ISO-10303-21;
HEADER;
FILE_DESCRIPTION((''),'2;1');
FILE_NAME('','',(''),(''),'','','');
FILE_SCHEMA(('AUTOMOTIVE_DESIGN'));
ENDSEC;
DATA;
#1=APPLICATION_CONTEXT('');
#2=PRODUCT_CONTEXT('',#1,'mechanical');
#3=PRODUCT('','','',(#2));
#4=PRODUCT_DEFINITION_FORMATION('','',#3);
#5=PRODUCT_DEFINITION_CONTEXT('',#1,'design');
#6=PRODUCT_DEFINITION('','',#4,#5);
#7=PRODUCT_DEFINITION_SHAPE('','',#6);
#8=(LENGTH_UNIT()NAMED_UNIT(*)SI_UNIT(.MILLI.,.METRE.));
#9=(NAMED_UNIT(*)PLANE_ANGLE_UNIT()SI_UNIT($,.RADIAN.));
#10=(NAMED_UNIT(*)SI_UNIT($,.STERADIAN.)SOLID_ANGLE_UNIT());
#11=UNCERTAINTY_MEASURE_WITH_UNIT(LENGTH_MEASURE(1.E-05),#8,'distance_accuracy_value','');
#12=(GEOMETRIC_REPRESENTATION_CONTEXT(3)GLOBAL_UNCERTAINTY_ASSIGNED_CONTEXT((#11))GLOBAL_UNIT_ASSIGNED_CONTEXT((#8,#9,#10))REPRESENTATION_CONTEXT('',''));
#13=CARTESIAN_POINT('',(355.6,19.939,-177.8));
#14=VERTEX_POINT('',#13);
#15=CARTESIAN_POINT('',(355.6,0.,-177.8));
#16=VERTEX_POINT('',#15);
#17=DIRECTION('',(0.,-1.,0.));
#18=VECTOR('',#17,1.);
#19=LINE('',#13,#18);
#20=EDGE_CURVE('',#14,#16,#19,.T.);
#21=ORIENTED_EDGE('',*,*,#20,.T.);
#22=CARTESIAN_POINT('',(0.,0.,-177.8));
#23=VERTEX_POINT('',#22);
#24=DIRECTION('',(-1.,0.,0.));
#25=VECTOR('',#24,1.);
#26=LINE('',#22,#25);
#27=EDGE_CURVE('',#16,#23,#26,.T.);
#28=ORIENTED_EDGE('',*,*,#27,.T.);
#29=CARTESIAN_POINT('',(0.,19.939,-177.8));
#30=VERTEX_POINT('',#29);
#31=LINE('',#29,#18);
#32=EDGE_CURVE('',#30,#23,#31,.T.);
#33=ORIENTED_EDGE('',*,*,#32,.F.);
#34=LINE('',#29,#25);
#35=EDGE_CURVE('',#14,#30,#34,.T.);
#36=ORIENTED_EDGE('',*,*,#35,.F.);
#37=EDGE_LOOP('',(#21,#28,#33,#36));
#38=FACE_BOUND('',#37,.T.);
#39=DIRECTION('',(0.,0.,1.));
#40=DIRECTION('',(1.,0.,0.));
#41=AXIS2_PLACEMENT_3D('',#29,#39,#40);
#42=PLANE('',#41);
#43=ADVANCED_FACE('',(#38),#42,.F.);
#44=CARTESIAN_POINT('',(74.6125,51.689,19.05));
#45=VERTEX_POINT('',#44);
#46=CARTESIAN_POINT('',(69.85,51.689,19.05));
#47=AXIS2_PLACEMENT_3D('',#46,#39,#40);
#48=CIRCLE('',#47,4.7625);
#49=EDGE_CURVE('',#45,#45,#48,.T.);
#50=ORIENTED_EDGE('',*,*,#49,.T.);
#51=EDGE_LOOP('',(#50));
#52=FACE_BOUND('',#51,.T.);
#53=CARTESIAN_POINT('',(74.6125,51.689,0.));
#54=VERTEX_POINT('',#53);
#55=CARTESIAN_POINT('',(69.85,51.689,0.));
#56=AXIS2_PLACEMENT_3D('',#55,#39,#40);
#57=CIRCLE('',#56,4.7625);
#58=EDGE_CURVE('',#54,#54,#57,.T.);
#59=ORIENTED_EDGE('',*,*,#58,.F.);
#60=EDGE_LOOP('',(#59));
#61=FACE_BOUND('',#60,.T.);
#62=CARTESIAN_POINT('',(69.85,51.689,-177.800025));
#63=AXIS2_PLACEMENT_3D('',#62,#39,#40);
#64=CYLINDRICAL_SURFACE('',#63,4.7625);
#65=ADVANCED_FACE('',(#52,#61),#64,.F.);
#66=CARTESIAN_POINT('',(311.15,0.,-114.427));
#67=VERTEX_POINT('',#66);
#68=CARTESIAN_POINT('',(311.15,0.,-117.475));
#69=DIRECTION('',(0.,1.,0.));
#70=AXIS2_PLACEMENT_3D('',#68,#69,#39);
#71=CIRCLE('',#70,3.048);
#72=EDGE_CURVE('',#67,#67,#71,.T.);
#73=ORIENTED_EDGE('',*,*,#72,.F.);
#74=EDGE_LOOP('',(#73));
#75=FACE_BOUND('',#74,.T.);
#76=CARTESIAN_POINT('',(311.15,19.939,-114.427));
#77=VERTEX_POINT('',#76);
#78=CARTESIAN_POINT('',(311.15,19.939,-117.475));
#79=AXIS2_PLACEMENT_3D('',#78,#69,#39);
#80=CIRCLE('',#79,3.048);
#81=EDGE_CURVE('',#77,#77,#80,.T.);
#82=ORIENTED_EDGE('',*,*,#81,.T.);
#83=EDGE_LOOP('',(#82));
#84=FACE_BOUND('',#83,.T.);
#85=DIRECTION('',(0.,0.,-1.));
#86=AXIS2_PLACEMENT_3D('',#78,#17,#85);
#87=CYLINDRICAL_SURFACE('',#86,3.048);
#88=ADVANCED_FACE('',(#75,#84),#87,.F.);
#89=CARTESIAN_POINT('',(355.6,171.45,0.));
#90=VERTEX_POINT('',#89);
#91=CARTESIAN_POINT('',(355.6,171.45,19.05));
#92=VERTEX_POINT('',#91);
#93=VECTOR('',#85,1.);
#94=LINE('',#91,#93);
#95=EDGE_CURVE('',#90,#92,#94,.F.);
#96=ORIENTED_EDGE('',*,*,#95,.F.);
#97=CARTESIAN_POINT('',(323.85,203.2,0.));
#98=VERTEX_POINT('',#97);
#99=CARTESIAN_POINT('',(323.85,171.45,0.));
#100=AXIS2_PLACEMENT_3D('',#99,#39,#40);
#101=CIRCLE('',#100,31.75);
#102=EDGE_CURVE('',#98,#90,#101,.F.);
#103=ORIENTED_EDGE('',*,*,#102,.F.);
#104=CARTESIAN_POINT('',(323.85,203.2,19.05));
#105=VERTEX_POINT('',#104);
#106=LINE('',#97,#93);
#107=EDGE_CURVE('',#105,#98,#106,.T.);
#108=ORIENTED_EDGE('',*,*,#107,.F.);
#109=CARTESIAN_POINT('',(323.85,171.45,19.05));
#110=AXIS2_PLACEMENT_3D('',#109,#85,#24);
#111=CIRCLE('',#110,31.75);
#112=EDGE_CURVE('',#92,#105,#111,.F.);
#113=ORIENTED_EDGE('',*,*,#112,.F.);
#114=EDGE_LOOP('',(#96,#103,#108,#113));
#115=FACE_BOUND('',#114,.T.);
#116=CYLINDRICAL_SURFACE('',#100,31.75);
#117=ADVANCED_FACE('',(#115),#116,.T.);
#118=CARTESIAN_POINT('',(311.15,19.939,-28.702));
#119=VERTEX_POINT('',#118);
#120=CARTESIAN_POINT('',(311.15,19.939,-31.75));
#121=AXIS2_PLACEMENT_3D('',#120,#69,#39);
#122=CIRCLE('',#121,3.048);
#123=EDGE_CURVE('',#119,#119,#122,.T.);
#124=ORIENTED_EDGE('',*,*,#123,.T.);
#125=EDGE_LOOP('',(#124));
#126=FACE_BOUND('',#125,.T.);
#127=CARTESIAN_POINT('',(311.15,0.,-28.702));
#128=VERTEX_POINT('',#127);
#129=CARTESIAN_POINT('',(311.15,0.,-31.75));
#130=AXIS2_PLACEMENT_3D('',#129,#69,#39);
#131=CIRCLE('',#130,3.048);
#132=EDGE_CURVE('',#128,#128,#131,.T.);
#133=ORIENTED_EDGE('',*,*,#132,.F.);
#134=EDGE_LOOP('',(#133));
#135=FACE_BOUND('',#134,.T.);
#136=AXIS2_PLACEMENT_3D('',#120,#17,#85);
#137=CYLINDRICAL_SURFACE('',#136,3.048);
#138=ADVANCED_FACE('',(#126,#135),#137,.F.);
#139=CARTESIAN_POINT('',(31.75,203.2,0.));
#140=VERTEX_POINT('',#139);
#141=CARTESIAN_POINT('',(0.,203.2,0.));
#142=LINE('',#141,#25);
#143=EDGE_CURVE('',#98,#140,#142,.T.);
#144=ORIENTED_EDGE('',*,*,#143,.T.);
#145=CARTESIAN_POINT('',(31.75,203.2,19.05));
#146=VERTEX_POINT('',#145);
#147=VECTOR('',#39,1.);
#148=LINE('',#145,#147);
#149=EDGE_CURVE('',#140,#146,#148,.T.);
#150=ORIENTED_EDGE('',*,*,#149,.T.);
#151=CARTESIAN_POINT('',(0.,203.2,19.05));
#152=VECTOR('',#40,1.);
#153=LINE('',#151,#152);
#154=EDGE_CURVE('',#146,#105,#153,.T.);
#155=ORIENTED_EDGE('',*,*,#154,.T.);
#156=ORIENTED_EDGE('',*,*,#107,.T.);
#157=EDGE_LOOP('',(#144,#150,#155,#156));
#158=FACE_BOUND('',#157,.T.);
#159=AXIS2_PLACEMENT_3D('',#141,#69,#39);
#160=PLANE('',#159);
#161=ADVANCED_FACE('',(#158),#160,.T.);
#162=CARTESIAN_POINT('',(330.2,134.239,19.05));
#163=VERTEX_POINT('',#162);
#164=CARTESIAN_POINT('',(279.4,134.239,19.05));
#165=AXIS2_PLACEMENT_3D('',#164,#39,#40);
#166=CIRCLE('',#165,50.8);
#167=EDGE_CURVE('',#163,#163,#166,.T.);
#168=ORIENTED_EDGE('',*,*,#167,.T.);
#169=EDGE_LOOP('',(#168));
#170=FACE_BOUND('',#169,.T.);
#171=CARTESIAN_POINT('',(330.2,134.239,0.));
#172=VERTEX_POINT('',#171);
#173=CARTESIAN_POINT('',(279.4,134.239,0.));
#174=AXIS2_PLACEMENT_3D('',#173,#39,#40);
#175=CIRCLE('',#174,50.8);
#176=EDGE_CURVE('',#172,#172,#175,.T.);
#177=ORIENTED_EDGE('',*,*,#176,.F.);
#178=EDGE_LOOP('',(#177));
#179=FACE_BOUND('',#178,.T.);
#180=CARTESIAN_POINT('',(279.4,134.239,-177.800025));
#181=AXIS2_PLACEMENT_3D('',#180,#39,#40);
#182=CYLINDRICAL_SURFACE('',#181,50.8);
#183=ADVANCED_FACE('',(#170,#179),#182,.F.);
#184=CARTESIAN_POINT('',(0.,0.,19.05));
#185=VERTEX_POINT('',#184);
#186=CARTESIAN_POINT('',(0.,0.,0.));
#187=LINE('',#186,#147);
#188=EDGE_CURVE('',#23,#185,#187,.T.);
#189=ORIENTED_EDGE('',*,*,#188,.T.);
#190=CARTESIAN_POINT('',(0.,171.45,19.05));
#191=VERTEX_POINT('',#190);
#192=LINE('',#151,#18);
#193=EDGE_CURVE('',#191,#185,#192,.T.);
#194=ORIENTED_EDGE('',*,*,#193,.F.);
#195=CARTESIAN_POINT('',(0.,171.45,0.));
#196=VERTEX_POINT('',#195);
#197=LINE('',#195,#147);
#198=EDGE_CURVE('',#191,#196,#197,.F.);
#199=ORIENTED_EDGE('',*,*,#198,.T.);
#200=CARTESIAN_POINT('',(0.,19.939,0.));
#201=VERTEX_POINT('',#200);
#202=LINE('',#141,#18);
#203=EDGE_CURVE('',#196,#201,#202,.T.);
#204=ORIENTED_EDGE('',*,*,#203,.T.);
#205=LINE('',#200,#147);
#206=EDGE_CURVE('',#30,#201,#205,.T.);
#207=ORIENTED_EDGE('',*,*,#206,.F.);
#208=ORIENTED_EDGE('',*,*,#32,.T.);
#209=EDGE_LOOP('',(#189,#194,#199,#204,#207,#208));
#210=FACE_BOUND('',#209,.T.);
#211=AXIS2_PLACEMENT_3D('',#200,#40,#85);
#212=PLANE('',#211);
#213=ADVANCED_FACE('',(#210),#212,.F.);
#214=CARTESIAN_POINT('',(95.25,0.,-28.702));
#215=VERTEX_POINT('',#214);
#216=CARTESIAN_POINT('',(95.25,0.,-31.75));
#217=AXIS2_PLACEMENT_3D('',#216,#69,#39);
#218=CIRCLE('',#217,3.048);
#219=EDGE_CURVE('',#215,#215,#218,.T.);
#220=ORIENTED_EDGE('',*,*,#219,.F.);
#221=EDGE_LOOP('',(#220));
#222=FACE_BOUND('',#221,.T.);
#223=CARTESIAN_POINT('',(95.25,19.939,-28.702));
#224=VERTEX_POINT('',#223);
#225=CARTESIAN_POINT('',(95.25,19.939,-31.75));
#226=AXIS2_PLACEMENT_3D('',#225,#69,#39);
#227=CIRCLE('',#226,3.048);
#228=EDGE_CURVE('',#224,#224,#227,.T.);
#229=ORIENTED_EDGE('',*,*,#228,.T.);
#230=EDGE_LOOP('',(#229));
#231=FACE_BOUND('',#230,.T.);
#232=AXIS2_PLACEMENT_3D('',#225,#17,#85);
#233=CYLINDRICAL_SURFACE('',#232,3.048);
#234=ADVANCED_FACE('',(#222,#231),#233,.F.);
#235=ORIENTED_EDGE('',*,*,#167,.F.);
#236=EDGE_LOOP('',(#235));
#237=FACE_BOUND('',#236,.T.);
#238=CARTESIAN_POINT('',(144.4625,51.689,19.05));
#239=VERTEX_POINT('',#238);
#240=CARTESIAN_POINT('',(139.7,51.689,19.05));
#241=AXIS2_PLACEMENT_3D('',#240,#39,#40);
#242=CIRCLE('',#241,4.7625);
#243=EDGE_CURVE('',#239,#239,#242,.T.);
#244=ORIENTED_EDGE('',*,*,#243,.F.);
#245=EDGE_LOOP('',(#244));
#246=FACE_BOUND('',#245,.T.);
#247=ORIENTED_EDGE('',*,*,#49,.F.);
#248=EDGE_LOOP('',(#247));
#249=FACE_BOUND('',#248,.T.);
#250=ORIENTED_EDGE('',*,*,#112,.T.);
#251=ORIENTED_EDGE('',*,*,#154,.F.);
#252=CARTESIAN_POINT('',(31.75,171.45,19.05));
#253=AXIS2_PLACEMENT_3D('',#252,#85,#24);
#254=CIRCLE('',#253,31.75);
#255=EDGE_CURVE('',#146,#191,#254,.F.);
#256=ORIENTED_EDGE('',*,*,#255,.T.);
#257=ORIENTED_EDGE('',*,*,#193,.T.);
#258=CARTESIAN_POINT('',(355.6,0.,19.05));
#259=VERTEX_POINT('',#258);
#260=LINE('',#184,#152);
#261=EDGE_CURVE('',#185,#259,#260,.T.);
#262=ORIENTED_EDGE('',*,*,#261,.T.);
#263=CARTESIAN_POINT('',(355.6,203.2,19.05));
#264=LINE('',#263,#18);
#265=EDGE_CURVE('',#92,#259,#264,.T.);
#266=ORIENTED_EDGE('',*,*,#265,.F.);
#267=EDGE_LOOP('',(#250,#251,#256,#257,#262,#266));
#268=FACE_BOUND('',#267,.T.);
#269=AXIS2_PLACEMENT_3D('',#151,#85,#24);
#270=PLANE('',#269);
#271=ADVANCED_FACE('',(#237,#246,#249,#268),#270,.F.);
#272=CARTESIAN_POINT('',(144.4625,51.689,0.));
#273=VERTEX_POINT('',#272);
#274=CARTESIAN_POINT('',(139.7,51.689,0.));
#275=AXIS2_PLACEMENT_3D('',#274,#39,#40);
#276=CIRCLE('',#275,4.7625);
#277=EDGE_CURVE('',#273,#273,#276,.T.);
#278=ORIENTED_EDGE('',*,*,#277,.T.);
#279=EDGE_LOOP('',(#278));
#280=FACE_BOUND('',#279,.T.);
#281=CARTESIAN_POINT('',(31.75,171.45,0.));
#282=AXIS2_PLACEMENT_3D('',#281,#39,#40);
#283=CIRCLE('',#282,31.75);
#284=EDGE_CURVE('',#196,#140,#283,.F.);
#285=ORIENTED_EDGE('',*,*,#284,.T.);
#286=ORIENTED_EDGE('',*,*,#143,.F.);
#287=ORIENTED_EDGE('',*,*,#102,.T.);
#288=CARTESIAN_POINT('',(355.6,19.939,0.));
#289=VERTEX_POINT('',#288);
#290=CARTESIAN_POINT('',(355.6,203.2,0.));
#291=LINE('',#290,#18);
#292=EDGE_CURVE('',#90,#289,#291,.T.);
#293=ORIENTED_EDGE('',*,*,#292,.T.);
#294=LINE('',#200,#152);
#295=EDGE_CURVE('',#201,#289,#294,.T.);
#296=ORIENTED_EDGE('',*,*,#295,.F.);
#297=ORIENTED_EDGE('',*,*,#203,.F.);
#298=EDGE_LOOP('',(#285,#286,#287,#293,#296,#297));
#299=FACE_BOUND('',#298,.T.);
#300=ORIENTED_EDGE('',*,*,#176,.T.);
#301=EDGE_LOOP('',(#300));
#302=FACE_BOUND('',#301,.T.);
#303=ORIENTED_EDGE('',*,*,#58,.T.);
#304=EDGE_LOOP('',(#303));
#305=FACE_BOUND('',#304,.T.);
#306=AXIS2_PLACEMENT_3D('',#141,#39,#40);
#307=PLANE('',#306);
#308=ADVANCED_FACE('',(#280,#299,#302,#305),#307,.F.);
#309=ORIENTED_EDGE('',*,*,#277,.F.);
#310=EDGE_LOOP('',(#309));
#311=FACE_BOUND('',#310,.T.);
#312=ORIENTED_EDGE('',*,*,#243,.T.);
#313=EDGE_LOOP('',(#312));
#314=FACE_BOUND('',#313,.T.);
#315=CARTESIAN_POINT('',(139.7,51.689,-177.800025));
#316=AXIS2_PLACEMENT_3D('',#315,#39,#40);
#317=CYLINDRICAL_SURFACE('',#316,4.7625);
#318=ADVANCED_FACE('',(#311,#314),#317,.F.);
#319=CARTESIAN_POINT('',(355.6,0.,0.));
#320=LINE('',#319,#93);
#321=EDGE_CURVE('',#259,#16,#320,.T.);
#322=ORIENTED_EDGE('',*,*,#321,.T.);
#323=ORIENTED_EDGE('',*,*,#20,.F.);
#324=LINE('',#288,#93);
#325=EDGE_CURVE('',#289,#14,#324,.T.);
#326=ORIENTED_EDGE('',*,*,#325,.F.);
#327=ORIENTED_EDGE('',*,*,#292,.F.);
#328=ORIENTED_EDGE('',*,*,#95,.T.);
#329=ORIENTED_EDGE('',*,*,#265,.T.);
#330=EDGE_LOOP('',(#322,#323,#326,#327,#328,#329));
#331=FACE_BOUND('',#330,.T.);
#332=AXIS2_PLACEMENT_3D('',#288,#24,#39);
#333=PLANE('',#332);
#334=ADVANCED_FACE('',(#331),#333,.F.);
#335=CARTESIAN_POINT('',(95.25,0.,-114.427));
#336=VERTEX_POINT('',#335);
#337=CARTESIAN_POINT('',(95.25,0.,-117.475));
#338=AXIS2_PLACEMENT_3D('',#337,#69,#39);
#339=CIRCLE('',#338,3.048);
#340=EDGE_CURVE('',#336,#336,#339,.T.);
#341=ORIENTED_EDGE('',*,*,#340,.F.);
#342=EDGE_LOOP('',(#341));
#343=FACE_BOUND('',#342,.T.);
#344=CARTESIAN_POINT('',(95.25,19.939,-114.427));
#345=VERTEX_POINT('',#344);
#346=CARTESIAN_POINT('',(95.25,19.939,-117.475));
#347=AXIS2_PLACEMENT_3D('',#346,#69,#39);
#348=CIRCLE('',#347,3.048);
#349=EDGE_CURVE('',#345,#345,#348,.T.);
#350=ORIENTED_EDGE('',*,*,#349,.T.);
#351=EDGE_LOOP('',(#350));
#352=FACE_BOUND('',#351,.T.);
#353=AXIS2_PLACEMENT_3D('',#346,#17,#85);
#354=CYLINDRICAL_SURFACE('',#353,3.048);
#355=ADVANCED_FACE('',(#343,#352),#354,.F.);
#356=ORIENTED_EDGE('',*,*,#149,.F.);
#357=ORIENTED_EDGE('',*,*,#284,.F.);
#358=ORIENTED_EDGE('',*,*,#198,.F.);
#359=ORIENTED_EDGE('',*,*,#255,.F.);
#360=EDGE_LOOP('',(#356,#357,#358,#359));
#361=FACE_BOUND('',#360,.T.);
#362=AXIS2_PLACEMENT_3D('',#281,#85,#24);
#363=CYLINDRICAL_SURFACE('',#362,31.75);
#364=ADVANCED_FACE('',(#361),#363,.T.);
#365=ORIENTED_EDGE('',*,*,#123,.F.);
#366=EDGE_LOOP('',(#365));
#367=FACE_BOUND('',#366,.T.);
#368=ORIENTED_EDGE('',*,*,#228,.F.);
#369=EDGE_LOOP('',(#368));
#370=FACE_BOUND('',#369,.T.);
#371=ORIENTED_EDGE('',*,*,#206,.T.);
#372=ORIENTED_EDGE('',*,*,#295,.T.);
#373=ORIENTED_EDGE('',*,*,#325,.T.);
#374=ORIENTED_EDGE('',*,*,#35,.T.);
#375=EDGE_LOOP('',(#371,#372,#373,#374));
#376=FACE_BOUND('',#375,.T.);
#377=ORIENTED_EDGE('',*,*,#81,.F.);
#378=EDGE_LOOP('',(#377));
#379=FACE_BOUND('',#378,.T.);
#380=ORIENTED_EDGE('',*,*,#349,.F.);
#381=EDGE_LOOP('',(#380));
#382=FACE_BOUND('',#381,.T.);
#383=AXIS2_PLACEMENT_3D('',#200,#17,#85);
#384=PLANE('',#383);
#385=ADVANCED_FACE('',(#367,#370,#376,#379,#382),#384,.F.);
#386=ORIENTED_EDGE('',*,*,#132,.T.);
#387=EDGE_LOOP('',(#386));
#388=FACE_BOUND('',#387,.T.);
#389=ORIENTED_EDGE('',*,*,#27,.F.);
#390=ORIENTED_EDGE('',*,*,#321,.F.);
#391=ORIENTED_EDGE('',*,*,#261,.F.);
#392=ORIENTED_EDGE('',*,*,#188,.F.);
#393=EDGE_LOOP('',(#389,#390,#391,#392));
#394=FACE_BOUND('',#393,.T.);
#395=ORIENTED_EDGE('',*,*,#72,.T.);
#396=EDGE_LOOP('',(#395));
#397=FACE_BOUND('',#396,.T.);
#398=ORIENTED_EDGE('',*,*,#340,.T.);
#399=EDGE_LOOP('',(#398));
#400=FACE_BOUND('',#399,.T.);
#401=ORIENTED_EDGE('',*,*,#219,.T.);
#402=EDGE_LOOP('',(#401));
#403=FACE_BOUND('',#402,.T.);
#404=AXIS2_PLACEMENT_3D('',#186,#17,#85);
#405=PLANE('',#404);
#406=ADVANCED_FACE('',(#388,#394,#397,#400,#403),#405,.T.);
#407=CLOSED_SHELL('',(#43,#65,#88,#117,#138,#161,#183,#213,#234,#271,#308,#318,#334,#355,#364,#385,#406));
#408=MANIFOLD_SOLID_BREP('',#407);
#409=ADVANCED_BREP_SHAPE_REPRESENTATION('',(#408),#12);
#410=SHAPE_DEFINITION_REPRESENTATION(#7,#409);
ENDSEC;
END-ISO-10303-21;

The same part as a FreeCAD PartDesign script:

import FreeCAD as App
import Part
import Sketcher

V = App.Vector
Q = App.Units.Quantity


def edges_at(feature, points):
    """Names of the edges that pass closest to the given points."""
    edges = feature.Shape.Edges
    near = lambda p: min(range(len(edges)), key=lambda i: edges[i].distToShape(Part.Vertex(*p))[0])
    return sorted({f"Edge{near(p) + 1}" for p in points})

doc = App.newDocument("Part")
body = doc.addObject("PartDesign::Body", "Body")

# Sketch on XZ plane
sketch1 = body.newObject("Sketcher::SketchObject", "Sketch")
sketch1.AttachmentSupport = (doc.getObject("XZ_Plane"), [""])
sketch1.MapMode = "FlatFace"
sketch1.addGeometry([
    Part.LineSegment(V(0, -177.8, 0), V(0, 0, 0)),  # 0
    Part.LineSegment(V(0, 0, 0), V(355.6, 0, 0)),  # 1
    Part.LineSegment(V(355.6, 0, 0), V(355.6, -177.8, 0)),  # 2
    Part.LineSegment(V(355.6, -177.8, 0), V(0, -177.8, 0)),  # 3
    Part.Circle(V(95.25, -31.75, 0), V(0, 0, 1), 3.048),  # 4
    Part.Circle(V(311.15, -31.75, 0), V(0, 0, 1), 3.048),  # 5
    Part.Circle(V(95.25, -117.475, 0), V(0, 0, 1), 3.048),  # 6
    Part.Circle(V(311.15, -117.475, 0), V(0, 0, 1), 3.048),  # 7
], False)
sketch1.addConstraint([
    Sketcher.Constraint("Coincident", 0, 2, 1, 1),
    Sketcher.Constraint("Coincident", 1, 2, 2, 1),
    Sketcher.Constraint("Coincident", 2, 2, 3, 1),
    Sketcher.Constraint("Coincident", 3, 2, 0, 1),
    Sketcher.Constraint("Vertical", 0),
    Sketcher.Constraint("Horizontal", 1),
    Sketcher.Constraint("Vertical", 2),
    Sketcher.Constraint("Horizontal", 3),
    Sketcher.Constraint("Coincident", 0, 2, -1, 1),
    Sketcher.Constraint("Equal", 4, 5),
    Sketcher.Constraint("Equal", 5, 6),
    Sketcher.Constraint("Equal", 6, 7),
    Sketcher.Constraint("Horizontal", 4, 3, 5, 3),
    Sketcher.Constraint("Horizontal", 6, 3, 7, 3),
    Sketcher.Constraint("Vertical", 4, 3, 6, 3),
    Sketcher.Constraint("Vertical", 5, 3, 7, 3),
    Sketcher.Constraint("Diameter", 4, Q("0.24 in")),
    Sketcher.Constraint("DistanceX", 1, 1, 1, 2, Q("14 in")),
    Sketcher.Constraint("DistanceY", 0, 1, 0, 2, Q("7 in")),
    Sketcher.Constraint("DistanceX", 4, 3, 5, 3, Q("8.5 in")),
    Sketcher.Constraint("DistanceX", -1, 1, 4, 3, Q("3.75 in")),
    Sketcher.Constraint("DistanceY", 4, 3, -1, 1, Q("1.25 in")),
    Sketcher.Constraint("DistanceY", 6, 3, -1, 1, Q("4.625 in")),
])
pad1 = body.newObject("PartDesign::Pad", "Pad")
pad1.Profile = sketch1
pad1.Length = Q("0.785 in")
pad1.Reversed = True

# Sketch on XZ plane
sketch2 = body.newObject("Sketcher::SketchObject", "Sketch001")
sketch2.AttachmentSupport = (doc.getObject("XZ_Plane"), [""])
sketch2.MapMode = "FlatFace"
sketch2.addGeometry([
    Part.LineSegment(V(0, 0, 0), V(0, 19.05, 0)),
    Part.LineSegment(V(0, 19.05, 0), V(355.6, 19.05, 0)),
    Part.LineSegment(V(355.6, 19.05, 0), V(355.6, 0, 0)),
    Part.LineSegment(V(355.6, 0, 0), V(0, 0, 0)),
], False)
sketch2.addConstraint([
    Sketcher.Constraint("Coincident", 0, 2, 1, 1),
    Sketcher.Constraint("Coincident", 1, 2, 2, 1),
    Sketcher.Constraint("Coincident", 2, 2, 3, 1),
    Sketcher.Constraint("Coincident", 3, 2, 0, 1),
    Sketcher.Constraint("Vertical", 0),
    Sketcher.Constraint("Horizontal", 1),
    Sketcher.Constraint("Vertical", 2),
    Sketcher.Constraint("Horizontal", 3),
    Sketcher.Constraint("Coincident", 3, 2, -1, 1),
    Sketcher.Constraint("DistanceX", 1, 1, 1, 2, Q("14 in")),
    Sketcher.Constraint("DistanceY", 0, 1, 0, 2, Q("0.75 in")),
])
pad2 = body.newObject("PartDesign::Pad", "Pad001")
pad2.Profile = sketch2
pad2.Length = Q("8 in")
pad2.Reversed = True

# Sketch on XY plane
sketch3 = body.newObject("Sketcher::SketchObject", "Sketch002")
sketch3.AttachmentSupport = (doc.getObject("XY_Plane"), [""])
sketch3.MapMode = "FlatFace"
sketch3.AttachmentOffset = App.Placement(V(0, 0, 0.75 * 25.4), App.Rotation())
sketch3.addGeometry([
    Part.Circle(V(279.4, 134.239, 0), V(0, 0, 1), 50.8),
    Part.Circle(V(69.85, 51.689, 0), V(0, 0, 1), 4.7625),
    Part.Circle(V(139.7, 51.689, 0), V(0, 0, 1), 4.7625),
], False)
sketch3.addConstraint([
    Sketcher.Constraint("Equal", 1, 2),
    Sketcher.Constraint("Horizontal", 1, 3, 2, 3),
    Sketcher.Constraint("Diameter", 0, Q("4 in")),
    Sketcher.Constraint("Diameter", 1, Q("0.375 in")),
    Sketcher.Constraint("DistanceX", -1, 1, 0, 3, Q("11 in")),
    Sketcher.Constraint("DistanceX", -1, 1, 2, 3, Q("5.5 in")),
    Sketcher.Constraint("DistanceX", -1, 1, 1, 3, Q("2.75 in")),
    Sketcher.Constraint("DistanceY", 1, 3, 0, 3, Q("3.25 in")),
    Sketcher.Constraint("DistanceY", -1, 1, 0, 3, Q("5.285 in")),
])
pocket1 = body.newObject("PartDesign::Pocket", "Pocket")
pocket1.Profile = sketch3
pocket1.Type = "ThroughAll"
doc.recompute()

fillet = body.newObject("PartDesign::Fillet", "Fillet")
fillet.Base = (pocket1, edges_at(pocket1, [(355.6, 203.2, 9.525), (0, 203.2, 9.525)]))
fillet.Radius = Q("1.25 in")

doc.recompute()
